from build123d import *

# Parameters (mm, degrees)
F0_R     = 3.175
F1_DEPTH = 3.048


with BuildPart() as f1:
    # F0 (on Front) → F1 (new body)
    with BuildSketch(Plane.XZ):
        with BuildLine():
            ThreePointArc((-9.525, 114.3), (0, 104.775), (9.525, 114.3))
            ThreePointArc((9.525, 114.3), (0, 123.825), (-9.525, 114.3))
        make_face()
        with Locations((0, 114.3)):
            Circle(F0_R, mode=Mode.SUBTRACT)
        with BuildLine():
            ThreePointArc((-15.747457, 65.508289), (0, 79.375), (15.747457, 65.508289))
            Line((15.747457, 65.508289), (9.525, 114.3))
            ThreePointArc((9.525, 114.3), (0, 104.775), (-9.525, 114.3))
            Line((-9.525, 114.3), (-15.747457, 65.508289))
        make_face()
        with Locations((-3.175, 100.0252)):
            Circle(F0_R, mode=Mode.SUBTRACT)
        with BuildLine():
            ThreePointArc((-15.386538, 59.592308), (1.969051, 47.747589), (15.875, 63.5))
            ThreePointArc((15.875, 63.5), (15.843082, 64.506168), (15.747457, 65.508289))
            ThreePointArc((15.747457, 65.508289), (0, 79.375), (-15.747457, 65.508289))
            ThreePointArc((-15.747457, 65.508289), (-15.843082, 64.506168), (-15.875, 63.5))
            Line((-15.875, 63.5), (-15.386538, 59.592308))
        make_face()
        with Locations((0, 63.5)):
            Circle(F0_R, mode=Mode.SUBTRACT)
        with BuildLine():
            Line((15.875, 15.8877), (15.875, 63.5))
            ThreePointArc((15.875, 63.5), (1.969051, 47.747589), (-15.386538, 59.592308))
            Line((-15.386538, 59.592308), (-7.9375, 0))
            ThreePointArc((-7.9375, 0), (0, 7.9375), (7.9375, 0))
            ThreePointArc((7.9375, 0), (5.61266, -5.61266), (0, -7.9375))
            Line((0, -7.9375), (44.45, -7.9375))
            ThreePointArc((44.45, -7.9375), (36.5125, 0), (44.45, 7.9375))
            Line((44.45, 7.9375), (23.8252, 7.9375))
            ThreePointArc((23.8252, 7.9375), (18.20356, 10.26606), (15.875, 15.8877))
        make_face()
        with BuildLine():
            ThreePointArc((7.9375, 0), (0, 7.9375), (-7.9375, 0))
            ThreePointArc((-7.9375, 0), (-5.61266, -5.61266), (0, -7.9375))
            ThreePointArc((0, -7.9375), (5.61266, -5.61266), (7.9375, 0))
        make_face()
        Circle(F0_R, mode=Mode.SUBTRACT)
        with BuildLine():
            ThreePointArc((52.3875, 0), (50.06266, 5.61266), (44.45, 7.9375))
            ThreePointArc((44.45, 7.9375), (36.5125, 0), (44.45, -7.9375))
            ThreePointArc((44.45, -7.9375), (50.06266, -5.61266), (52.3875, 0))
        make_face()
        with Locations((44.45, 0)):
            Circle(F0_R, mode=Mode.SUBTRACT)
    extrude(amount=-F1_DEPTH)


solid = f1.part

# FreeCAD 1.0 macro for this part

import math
import FreeCAD as App
import Part
import Sketcher
Q = App.Units.Quantity

doc = App.newDocument("Part")
body = doc.addObject("PartDesign::Body", "Body")

# Sketch on XZ plane
sketch1 = body.newObject("Sketcher::SketchObject", "Sketch")
sketch1.AttachmentSupport = (doc.getObject("XZ_Plane"), [""])
sketch1.MapMode = "FlatFace"
sketch1.addGeometry([
    Part.ArcOfCircle(Part.Circle(App.Vector(0, 114.3, 0), App.Vector(0, 0, 1), 9.525), math.radians(0), math.radians(180)),  # 0
    Part.LineSegment(App.Vector(-9.525, 114.3, 0), App.Vector(-15.747457, 65.508289, 0)),  # 1
    Part.ArcOfCircle(Part.Circle(App.Vector(0.000071, 63.499996, 0), App.Vector(0, 0, 1), 15.875071), math.radians(172.732261), math.radians(179.999985)),  # 2
    Part.LineSegment(App.Vector(-15.875, 63.5, 0), App.Vector(-15.386538, 59.592308, 0)),  # 3
    Part.LineSegment(App.Vector(-15.386538, 59.592308, 0), App.Vector(-7.9375, 0, 0)),  # 4
    Part.ArcOfCircle(Part.Circle(App.Vector(0, 0, 0), App.Vector(0, 0, 1), 7.9375), math.radians(-179.999998), math.radians(-90.000002)),  # 5
    Part.LineSegment(App.Vector(0, -7.9375, 0), App.Vector(44.45, -7.9375, 0)),  # 6
    Part.ArcOfCircle(Part.Circle(App.Vector(44.45, 0, 0), App.Vector(0, 0, 1), 7.9375), math.radians(-89.999998), math.radians(-0.000002)),  # 7
    Part.ArcOfCircle(Part.Circle(App.Vector(44.45, 0, 0), App.Vector(0, 0, 1), 7.9375), math.radians(0.000002), math.radians(89.999998)),  # 8
    Part.LineSegment(App.Vector(44.45, 7.9375, 0), App.Vector(23.8252, 7.9375, 0)),  # 9
    Part.ArcOfCircle(Part.Circle(App.Vector(23.825201, 15.887701, 0), App.Vector(0, 0, 1), 7.950201), math.radians(-179.999992), math.radians(-90.000008)),  # 10
    Part.LineSegment(App.Vector(15.875, 15.8877, 0), App.Vector(15.875, 63.5, 0)),  # 11
    Part.ArcOfCircle(Part.Circle(App.Vector(-0.000071, 63.499996, 0), App.Vector(0, 0, 1), 15.875071), math.radians(0.000015), math.radians(7.267739)),  # 12
    Part.LineSegment(App.Vector(15.747457, 65.508289, 0), App.Vector(9.525, 114.3, 0)),  # 13
    Part.Circle(App.Vector(0, 0, 0), App.Vector(0, 0, 1), 3.175),  # 14
    Part.Circle(App.Vector(44.45, 0, 0), App.Vector(0, 0, 1), 3.175),  # 15
    Part.Circle(App.Vector(0, 63.5, 0), App.Vector(0, 0, 1), 3.175),  # 16
    Part.Circle(App.Vector(-3.175, 100.0252, 0), App.Vector(0, 0, 1), 3.175),  # 17
    Part.Circle(App.Vector(0, 114.3, 0), App.Vector(0, 0, 1), 3.175),  # 18
], False)
sketch1.addConstraint([
    Sketcher.Constraint("Coincident", 0, 2, 1, 1),
    Sketcher.Constraint("Tangent", 1, 2, 2, 1),
    Sketcher.Constraint("Coincident", 2, 2, 3, 1),
    Sketcher.Constraint("Coincident", 3, 2, 4, 1),
    Sketcher.Constraint("Coincident", 4, 2, 5, 1),
    Sketcher.Constraint("Tangent", 5, 2, 6, 1),
    Sketcher.Constraint("Tangent", 6, 2, 7, 1),
    Sketcher.Constraint("Tangent", 7, 2, 8, 1),
    Sketcher.Constraint("Tangent", 8, 2, 9, 1),
    Sketcher.Constraint("Tangent", 9, 2, 10, 2),
    Sketcher.Constraint("Tangent", 10, 1, 11, 1),
    Sketcher.Constraint("Tangent", 11, 2, 12, 1),
    Sketcher.Constraint("Tangent", 12, 2, 13, 1),
    Sketcher.Constraint("Coincident", 13, 2, 0, 1),
    Sketcher.Constraint("Horizontal", 6),
    Sketcher.Constraint("Horizontal", 9),
    Sketcher.Constraint("Vertical", 11),
    Sketcher.Constraint("Coincident", 5, 3, -1, 1),
    Sketcher.Constraint("Coincident", 14, 3, -1, 1),
    Sketcher.Constraint("Coincident", 15, 3, 7, 3),
    Sketcher.Constraint("Coincident", 18, 3, 0, 3),
    Sketcher.Constraint("Equal", 5, 7),
    Sketcher.Constraint("Equal", 7, 8),
    Sketcher.Constraint("Equal", 2, 12),
    Sketcher.Constraint("Equal", 14, 15),
    Sketcher.Constraint("Equal", 15, 16),
    Sketcher.Constraint("Equal", 16, 17),
    Sketcher.Constraint("Equal", 17, 18),
    Sketcher.Constraint("Symmetric", 2, 3, 12, 3, -2),
    Sketcher.Constraint("Symmetric", 0, 2, 13, 2, -2),
    Sketcher.Constraint("PointOnObject", 16, 3, -2),
    Sketcher.Constraint("PointOnObject", 4, 2, -1),
    Sketcher.Constraint("PointOnObject", 7, 2, -1),
    Sketcher.Constraint("Parallel", 3, 4),
    Sketcher.Constraint("Horizontal", 18, 3, 0, 2),
    Sketcher.Constraint("Horizontal", 16, 3, 2, 2),
    Sketcher.Constraint("Horizontal", 2, 2, 11, 2),
    Sketcher.Constraint("Diameter", 14, Q("0.25 in")),
    Sketcher.Constraint("Radius", 0, Q("0.375 in")),
    Sketcher.Constraint("Radius", 5, Q("0.3125 in")),
    Sketcher.Constraint("Radius", 10, Q("0.313 in")),
    Sketcher.Constraint("DistanceY", 2, 3, 0, 3, Q("2.0000002 in")),
    Sketcher.Constraint("DistanceX", 6, 1, 6, 2, Q("1.75 in")),
    Sketcher.Constraint("DistanceY", -1, 1, 0, 3, Q("4.5 in")),
    Sketcher.Constraint("DistanceX", 2, 2, 17, 3, Q("0.5 in")),
    Sketcher.Constraint("DistanceX", 17, 3, 13, 2, Q("0.5 in")),
    Sketcher.Constraint("DistanceY", -1, 1, 17, 3, Q("3.938 in")),
    Sketcher.Constraint("Radius", 2, 15.875071),
    Sketcher.Constraint("Distance", 4, 60.056068),
])
pad1 = body.newObject("PartDesign::Pad", "Pad")
pad1.Profile = sketch1
pad1.Length = Q("0.12 in")
pad1.Reversed = True

doc.recompute()
